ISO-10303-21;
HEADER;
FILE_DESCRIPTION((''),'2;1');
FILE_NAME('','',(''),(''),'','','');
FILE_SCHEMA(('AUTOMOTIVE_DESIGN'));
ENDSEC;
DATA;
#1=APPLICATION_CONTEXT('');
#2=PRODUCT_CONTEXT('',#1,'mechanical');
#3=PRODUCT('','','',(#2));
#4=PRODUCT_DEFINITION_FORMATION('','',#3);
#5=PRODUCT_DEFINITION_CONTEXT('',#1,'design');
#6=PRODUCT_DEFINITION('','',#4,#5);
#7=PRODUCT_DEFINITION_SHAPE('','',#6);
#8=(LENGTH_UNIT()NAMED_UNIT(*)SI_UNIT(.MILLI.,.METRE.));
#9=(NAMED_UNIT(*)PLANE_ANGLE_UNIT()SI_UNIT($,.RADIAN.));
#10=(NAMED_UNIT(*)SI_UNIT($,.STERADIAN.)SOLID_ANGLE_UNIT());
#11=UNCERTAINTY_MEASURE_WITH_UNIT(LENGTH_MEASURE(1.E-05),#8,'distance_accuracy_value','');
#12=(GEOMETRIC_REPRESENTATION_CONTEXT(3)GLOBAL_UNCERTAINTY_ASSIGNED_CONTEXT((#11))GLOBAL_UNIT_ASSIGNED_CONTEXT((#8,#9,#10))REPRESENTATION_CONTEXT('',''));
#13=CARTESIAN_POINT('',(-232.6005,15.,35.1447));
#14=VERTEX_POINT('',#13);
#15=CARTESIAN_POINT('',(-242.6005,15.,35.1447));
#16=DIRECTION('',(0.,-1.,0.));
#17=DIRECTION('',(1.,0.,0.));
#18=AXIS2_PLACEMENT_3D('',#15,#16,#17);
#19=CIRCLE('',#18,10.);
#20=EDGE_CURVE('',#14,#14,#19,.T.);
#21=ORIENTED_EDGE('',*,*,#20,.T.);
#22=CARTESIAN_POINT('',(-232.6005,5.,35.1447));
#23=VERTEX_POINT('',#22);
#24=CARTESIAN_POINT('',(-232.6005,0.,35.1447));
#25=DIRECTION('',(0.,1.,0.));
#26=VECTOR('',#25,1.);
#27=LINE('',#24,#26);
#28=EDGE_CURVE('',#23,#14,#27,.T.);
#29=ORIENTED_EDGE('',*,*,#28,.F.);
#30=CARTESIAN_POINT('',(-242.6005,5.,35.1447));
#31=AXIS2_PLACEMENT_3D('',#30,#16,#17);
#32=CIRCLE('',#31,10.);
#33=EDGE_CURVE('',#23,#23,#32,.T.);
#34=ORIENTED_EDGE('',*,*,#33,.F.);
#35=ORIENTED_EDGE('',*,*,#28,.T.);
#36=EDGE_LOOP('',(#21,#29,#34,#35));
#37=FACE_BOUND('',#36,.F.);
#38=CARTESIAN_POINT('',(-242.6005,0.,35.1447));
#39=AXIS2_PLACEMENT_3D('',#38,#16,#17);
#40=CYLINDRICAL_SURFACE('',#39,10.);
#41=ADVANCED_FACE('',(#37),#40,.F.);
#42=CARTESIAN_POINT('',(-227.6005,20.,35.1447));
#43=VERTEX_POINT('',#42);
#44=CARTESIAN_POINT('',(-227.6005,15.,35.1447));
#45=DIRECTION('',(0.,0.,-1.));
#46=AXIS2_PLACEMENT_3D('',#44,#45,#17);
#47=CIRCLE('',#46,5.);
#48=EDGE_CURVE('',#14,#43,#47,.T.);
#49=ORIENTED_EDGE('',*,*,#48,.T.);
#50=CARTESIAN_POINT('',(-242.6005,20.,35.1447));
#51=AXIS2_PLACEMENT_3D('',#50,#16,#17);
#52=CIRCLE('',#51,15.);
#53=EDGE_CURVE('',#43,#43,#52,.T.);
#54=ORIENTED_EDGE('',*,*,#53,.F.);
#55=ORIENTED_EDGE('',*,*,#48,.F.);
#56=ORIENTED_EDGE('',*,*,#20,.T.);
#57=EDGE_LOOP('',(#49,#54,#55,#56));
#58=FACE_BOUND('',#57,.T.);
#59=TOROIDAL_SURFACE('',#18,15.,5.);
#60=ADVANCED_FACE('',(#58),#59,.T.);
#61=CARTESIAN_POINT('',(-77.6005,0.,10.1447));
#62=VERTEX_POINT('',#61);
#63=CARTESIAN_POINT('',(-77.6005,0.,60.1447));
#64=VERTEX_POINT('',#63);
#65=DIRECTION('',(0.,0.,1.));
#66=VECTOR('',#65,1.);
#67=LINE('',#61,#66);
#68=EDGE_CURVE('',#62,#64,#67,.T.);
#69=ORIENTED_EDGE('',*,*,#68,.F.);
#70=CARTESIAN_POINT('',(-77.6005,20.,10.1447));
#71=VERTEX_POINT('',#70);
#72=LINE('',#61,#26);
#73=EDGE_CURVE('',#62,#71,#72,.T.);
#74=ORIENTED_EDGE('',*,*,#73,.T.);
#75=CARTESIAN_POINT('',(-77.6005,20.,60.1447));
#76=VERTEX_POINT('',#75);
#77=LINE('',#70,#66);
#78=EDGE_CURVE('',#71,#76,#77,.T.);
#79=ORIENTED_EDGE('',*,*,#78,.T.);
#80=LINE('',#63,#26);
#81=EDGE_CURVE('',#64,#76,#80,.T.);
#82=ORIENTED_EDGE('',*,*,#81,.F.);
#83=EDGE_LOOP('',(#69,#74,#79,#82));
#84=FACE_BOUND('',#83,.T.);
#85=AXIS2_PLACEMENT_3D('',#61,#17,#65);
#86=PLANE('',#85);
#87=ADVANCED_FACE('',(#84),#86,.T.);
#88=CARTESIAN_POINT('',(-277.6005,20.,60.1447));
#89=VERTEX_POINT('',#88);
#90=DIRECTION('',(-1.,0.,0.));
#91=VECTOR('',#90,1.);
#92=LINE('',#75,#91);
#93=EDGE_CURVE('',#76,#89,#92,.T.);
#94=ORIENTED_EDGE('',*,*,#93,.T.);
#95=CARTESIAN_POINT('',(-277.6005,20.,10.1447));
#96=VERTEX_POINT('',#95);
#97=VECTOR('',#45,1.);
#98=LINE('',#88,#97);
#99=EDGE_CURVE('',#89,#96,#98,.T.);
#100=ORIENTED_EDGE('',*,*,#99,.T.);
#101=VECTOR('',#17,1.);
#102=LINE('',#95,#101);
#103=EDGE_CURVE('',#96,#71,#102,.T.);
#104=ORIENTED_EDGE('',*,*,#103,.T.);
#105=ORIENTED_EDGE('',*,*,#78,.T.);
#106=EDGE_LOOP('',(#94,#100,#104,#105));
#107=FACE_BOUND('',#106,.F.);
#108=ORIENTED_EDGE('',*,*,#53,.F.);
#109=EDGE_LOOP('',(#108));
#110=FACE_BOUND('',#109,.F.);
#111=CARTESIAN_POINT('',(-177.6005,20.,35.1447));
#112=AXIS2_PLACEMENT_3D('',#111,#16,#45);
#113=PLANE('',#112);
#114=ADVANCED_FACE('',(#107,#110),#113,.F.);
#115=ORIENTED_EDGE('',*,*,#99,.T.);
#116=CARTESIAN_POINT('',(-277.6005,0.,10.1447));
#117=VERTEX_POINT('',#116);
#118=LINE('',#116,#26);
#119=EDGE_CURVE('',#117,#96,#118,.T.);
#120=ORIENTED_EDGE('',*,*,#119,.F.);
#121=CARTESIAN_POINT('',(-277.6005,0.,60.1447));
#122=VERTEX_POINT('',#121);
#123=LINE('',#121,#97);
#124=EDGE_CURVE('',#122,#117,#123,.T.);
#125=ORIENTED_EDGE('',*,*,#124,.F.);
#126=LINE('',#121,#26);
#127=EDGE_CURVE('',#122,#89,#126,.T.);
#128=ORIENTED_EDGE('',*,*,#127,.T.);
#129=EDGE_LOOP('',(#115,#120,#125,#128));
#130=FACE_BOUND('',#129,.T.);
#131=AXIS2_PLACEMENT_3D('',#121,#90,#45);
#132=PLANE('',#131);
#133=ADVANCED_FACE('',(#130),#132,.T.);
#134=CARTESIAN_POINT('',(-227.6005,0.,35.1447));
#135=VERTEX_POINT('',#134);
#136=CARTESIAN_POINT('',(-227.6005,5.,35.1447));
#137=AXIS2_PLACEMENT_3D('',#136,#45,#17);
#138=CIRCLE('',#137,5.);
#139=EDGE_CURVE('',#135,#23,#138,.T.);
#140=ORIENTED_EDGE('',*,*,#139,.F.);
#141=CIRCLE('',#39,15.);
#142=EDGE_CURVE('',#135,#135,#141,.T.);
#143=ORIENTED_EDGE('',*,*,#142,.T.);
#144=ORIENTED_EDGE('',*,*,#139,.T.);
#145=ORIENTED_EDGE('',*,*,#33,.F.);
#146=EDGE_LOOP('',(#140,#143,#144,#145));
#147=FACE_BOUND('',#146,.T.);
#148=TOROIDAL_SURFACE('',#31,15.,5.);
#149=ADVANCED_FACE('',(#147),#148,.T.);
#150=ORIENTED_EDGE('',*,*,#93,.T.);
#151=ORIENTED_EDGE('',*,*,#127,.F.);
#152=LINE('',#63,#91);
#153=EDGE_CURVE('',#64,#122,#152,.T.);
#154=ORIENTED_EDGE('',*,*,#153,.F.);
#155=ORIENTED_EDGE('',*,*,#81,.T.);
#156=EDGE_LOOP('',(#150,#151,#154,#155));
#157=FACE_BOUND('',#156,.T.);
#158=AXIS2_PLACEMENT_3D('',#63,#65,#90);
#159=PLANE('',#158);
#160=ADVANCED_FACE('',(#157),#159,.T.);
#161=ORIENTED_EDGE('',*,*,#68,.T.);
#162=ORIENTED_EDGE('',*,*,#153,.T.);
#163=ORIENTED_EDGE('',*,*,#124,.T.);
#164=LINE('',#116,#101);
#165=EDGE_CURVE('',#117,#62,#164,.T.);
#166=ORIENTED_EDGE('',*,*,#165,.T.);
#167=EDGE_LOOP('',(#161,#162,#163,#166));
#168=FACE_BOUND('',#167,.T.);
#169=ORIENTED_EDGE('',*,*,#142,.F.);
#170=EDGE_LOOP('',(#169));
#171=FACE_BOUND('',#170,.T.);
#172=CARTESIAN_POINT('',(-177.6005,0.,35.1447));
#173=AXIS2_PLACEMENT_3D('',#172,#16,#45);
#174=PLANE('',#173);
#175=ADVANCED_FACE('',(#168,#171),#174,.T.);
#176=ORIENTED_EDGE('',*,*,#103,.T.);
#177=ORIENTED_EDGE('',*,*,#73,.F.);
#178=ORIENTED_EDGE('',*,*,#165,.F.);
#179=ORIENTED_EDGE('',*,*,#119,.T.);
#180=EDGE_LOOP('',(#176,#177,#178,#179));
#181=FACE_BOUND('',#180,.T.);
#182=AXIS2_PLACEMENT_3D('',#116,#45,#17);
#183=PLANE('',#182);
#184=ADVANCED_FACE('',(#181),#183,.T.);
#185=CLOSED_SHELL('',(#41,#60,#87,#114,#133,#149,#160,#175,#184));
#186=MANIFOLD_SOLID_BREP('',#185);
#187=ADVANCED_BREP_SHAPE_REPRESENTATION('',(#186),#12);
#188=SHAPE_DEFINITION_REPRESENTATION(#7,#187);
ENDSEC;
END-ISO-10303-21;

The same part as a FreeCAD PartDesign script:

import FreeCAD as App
import Part
import Sketcher
from FreeCAD import Vector
Q = App.Units.Quantity


def edges_at(feature, points):
    """Names of the edges that pass closest to the given points."""
    edges = feature.Shape.Edges
    near = lambda p: min(range(len(edges)), key=lambda i: edges[i].distToShape(Part.Vertex(*p))[0])
    return sorted({f"Edge{near(p) + 1}" for p in points})

doc = App.newDocument("Part")
body = doc.addObject("PartDesign::Body", "Body")

sketch1 = body.newObject("Sketcher::SketchObject", "Sketch")
sketch1.AttachmentSupport = (doc.getObject("XZ_Plane"), [""])
sketch1.MapMode = "FlatFace"
sketch1.addGeometry([
    Part.LineSegment(Vector(-277.6005, 10.1447, 0), Vector(-77.6005, 10.1447, 0)),
    Part.LineSegment(Vector(-77.6005, 10.1447, 0), Vector(-77.6005, 60.1447, 0)),
    Part.LineSegment(Vector(-77.6005, 60.1447, 0), Vector(-277.6005, 60.1447, 0)),
    Part.LineSegment(Vector(-277.6005, 60.1447, 0), Vector(-277.6005, 10.1447, 0)),
], False)
sketch1.addConstraint([
    Sketcher.Constraint("Coincident", 0, 2, 1, 1),
    Sketcher.Constraint("Coincident", 1, 2, 2, 1),
    Sketcher.Constraint("Coincident", 2, 2, 3, 1),
    Sketcher.Constraint("Coincident", 3, 2, 0, 1),
    Sketcher.Constraint("Horizontal", 0),
    Sketcher.Constraint("Vertical", 1),
    Sketcher.Constraint("Horizontal", 2),
    Sketcher.Constraint("Vertical", 3),
    Sketcher.Constraint("DistanceX", 0, 1, 0, 2, Q("200 mm")),
    Sketcher.Constraint("DistanceY", 1, 1, 1, 2, Q("50 mm")),
    Sketcher.Constraint("DistanceX", 0, 2, -1, 1, Q("77.6005 mm")),
    Sketcher.Constraint("DistanceY", -1, 1, 0, 2, Q("10.1447 mm")),
])
pad1 = body.newObject("PartDesign::Pad", "Pad")
pad1.Profile = sketch1
pad1.Length = 20
pad1.Reversed = True

sketch2 = body.newObject("Sketcher::SketchObject", "Sketch001")
sketch2.AttachmentSupport = (doc.getObject("XZ_Plane"), [""])
sketch2.MapMode = "FlatFace"
sketch2.addGeometry(Part.Circle(Vector(-242.6005, 35.1447, 0), Vector(0, 0, 1), 10), False)
sketch2.addConstraint([
    Sketcher.Constraint("Diameter", 0, Q("20 mm")),
    Sketcher.Constraint("DistanceX", 0, 3, -1, 1, Q("242.6005 mm")),
    Sketcher.Constraint("DistanceY", -1, 1, 0, 3, Q("35.1447 mm")),
])
pocket1 = body.newObject("PartDesign::Pocket", "Pocket")
pocket1.Profile = sketch2
pocket1.Type = "ThroughAll"
doc.recompute()

fillet = body.newObject("PartDesign::Fillet", "Fillet")
fillet.Base = (pocket1, edges_at(pocket1, [(-252.601, 0, 35.145)]))
fillet.Radius = 5
doc.recompute()

fillet2 = body.newObject("PartDesign::Fillet", "Fillet001")
fillet2.Base = (fillet, edges_at(fillet, [(-242.601, 20, 45.145)]))
fillet2.Radius = 5

doc.recompute()
